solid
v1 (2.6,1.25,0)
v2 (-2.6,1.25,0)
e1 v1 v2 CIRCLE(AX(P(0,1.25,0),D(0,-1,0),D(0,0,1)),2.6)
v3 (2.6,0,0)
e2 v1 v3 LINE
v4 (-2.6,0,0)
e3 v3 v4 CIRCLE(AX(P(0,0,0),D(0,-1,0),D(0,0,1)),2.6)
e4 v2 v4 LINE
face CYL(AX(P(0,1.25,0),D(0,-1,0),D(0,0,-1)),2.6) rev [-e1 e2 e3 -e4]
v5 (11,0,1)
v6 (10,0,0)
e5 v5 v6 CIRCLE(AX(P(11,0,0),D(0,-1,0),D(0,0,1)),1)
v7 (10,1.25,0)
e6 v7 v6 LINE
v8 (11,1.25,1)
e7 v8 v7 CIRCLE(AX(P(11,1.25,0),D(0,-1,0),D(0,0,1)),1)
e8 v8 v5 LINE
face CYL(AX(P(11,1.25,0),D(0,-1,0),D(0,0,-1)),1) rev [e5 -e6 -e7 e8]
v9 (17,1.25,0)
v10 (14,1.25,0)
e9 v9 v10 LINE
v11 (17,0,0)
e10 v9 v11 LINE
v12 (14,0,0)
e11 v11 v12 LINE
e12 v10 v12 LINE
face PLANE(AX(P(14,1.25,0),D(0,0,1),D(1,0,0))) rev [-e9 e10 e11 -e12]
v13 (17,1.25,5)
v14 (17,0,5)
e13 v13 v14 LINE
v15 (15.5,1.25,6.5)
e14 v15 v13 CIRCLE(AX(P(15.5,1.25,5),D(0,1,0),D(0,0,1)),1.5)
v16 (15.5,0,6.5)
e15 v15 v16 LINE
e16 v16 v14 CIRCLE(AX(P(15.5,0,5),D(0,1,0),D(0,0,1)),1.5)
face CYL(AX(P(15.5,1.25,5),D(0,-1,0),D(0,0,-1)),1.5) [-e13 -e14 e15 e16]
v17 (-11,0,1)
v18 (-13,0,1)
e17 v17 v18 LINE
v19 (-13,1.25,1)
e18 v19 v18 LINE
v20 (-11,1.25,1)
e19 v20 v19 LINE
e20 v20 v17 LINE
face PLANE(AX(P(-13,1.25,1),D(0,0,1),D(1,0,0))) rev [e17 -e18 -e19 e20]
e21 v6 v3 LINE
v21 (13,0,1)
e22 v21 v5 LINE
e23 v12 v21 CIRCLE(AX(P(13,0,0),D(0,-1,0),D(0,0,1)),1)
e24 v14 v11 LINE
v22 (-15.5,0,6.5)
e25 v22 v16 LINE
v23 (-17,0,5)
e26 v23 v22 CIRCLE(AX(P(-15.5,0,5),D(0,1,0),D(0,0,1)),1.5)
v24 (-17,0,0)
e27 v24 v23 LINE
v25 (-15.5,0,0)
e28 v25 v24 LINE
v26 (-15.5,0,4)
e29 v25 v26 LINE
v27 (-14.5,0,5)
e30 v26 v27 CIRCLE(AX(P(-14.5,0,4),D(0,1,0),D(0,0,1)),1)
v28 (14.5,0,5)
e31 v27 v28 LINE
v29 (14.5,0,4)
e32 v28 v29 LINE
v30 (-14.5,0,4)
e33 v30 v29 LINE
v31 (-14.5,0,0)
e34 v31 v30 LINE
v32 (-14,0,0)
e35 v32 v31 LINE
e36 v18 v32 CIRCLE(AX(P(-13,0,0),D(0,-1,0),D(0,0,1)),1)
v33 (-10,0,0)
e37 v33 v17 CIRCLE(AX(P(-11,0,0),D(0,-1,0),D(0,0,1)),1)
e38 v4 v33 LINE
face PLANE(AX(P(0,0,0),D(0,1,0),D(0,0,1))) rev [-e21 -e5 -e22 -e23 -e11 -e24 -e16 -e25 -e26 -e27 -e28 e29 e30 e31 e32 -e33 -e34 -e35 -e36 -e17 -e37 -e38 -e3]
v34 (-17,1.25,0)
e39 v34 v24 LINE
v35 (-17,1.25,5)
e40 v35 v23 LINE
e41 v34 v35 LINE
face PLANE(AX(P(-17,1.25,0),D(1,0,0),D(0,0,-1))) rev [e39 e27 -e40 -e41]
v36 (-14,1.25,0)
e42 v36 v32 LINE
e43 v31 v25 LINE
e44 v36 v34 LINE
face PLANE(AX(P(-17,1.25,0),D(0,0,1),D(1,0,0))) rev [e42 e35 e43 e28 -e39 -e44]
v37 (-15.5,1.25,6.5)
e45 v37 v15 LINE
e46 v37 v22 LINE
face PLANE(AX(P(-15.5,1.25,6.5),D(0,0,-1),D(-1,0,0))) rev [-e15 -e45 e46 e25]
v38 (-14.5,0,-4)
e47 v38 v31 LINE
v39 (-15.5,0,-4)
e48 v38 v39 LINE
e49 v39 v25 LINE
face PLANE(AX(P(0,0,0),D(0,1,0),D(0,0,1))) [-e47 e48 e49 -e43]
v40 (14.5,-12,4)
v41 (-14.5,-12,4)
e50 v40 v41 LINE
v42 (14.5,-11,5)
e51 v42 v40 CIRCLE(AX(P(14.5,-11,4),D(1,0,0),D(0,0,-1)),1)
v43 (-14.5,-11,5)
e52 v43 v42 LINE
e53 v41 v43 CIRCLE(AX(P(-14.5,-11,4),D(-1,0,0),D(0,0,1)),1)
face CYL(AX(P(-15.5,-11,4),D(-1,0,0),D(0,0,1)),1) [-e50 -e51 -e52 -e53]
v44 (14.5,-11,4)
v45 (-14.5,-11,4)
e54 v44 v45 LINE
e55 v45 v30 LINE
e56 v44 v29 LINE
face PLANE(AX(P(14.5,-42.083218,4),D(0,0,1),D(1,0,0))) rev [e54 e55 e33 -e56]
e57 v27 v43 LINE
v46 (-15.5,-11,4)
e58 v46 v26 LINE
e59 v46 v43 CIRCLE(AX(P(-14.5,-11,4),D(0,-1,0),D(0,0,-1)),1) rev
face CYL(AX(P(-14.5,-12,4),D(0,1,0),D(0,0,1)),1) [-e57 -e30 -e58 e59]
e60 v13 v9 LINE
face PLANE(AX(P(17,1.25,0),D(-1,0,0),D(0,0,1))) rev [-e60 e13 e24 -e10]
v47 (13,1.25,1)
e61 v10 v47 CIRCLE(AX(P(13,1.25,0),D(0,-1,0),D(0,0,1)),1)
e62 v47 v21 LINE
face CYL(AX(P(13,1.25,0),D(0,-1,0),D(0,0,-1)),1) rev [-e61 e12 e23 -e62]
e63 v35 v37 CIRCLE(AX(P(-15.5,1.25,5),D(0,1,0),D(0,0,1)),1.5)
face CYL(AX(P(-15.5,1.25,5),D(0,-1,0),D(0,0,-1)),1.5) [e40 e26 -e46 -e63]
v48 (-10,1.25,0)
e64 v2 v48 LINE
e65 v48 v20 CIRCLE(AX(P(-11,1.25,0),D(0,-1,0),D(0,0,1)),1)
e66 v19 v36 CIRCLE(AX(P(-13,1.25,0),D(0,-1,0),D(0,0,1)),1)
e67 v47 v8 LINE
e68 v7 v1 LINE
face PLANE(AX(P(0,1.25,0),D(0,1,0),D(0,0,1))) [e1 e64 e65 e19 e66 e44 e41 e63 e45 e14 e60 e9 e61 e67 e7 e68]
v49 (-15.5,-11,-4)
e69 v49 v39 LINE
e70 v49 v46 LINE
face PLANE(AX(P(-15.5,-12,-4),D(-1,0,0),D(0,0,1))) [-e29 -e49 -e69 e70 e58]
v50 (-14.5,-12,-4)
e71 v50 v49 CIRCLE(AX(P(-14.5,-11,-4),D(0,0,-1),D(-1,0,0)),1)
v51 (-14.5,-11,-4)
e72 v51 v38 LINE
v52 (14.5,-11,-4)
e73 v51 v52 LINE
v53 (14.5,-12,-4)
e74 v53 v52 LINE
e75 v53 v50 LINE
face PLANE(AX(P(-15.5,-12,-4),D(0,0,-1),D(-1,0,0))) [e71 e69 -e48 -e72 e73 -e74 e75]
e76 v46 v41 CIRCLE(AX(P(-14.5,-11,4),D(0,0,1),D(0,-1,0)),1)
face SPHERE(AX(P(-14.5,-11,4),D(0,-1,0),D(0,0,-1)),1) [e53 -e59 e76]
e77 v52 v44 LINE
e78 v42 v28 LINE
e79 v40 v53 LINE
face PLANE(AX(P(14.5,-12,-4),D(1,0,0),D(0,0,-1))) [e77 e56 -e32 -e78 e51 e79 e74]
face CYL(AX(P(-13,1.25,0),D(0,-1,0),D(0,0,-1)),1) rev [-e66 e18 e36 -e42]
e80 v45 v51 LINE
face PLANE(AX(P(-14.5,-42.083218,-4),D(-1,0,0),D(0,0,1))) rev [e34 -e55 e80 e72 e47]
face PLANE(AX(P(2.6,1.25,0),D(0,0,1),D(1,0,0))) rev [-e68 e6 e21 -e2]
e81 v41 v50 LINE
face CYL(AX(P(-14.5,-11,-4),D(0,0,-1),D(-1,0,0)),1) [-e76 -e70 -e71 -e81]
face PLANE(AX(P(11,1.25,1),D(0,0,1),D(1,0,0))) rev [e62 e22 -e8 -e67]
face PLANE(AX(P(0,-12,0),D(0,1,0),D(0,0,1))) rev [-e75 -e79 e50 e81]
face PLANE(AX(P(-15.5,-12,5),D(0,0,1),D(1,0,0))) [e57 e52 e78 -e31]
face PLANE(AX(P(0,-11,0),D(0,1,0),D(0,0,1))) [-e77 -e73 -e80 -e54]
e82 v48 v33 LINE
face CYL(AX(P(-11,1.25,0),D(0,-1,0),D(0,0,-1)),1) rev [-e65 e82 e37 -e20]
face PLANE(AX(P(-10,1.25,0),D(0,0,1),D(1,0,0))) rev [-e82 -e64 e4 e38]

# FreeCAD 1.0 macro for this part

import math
import FreeCAD as App
import Part
import Sketcher
Q = App.Units.Quantity


def edges_at(feature, points):
    """Names of the edges that pass closest to the given points."""
    edges = feature.Shape.Edges
    near = lambda p: min(range(len(edges)), key=lambda i: edges[i].distToShape(Part.Vertex(*p))[0])
    return sorted({f"Edge{near(p) + 1}" for p in points})

doc = App.newDocument("Part")
params = doc.addObject("Spreadsheet::Sheet", "Params")
for row, (alias, value) in enumerate([
    ("sketch1_width", "30 mm"),
    ("sketch1_height", "9 mm"),
    ("pad1_length", "12 mm"),
    ("sketch2_width", "29 mm"),
    ("sketch2_height", "8 mm"),
    ("pocket1_length", "11 mm"),
    ("sketch3_radius", "1 mm"),
    ("sketch3_radius2", "1.5 mm"),
    ("sketch3_radius3", "2.6 mm"),
    ("sketch3_width", "3 mm"),
    ("sketch3_width2", "31 mm"),
    ("pad2_length", "1.25 mm"),
    ("fillet_radius", "1 mm"),
], start=1):
    params.set(f"A{row}", alias)
    params.set(f"B{row}", "=" + value)
    params.setAlias(f"B{row}", alias)

body = doc.addObject("PartDesign::Body", "Body")

# Sketch on XZ plane
sketch1 = body.newObject("Sketcher::SketchObject", "Sketch")
sketch1.AttachmentSupport = (doc.getObject("XZ_Plane"), [""])
sketch1.MapMode = "FlatFace"
sketch1.addGeometry(Part.LineSegment(App.Vector(-15.5, -4, 0), App.Vector(-15.5, 5, 0)), False)
sketch1.addGeometry(Part.LineSegment(App.Vector(-15.5, 5, 0), App.Vector(14.5, 5, 0)), False)
sketch1.addGeometry(Part.LineSegment(App.Vector(14.5, 5, 0), App.Vector(14.5, -4, 0)), False)
sketch1.addGeometry(Part.LineSegment(App.Vector(14.5, -4, 0), App.Vector(-15.5, -4, 0)), False)
sketch1.addConstraint(Sketcher.Constraint("Coincident", 0, 2, 1, 1))
sketch1.addConstraint(Sketcher.Constraint("Coincident", 1, 2, 2, 1))
sketch1.addConstraint(Sketcher.Constraint("Coincident", 2, 2, 3, 1))
sketch1.addConstraint(Sketcher.Constraint("Coincident", 3, 2, 0, 1))
sketch1.addConstraint(Sketcher.Constraint("Vertical", 0))
sketch1.addConstraint(Sketcher.Constraint("Horizontal", 1))
sketch1.addConstraint(Sketcher.Constraint("Vertical", 2))
sketch1.addConstraint(Sketcher.Constraint("Horizontal", 3))
sketch1.addConstraint(Sketcher.Constraint("DistanceX", 1, 1, 1, 2, Q("30 mm")))
sketch1.addConstraint(Sketcher.Constraint("DistanceY", 0, 1, 0, 2, Q("9 mm")))
sketch1.addConstraint(Sketcher.Constraint("DistanceY", -1, 1, 0, 2, Q("5 mm")))
sketch1.addConstraint(Sketcher.Constraint("DistanceX", 0, 2, -1, 1, Q("15.5 mm")))
sketch1.setExpression("Constraints[8]", "Params.sketch1_width")
sketch1.setExpression("Constraints[9]", "Params.sketch1_height")
pad1 = body.newObject("PartDesign::Pad", "Pad")
pad1.Profile = sketch1
pad1.setExpression("Length", "Params.pad1_length")

# Sketch on XZ plane
sketch2 = body.newObject("Sketcher::SketchObject", "Sketch001")
sketch2.AttachmentSupport = (doc.getObject("XZ_Plane"), [""])
sketch2.MapMode = "FlatFace"
sketch2.addGeometry(Part.LineSegment(App.Vector(-14.5, -4, 0), App.Vector(-14.5, 4, 0)), False)
sketch2.addGeometry(Part.LineSegment(App.Vector(-14.5, 4, 0), App.Vector(14.5, 4, 0)), False)
sketch2.addGeometry(Part.LineSegment(App.Vector(14.5, 4, 0), App.Vector(14.5, -4, 0)), False)
sketch2.addGeometry(Part.LineSegment(App.Vector(14.5, -4, 0), App.Vector(-14.5, -4, 0)), False)
sketch2.addConstraint(Sketcher.Constraint("Coincident", 0, 2, 1, 1))
sketch2.addConstraint(Sketcher.Constraint("Coincident", 1, 2, 2, 1))
sketch2.addConstraint(Sketcher.Constraint("Coincident", 2, 2, 3, 1))
sketch2.addConstraint(Sketcher.Constraint("Coincident", 3, 2, 0, 1))
sketch2.addConstraint(Sketcher.Constraint("Vertical", 0))
sketch2.addConstraint(Sketcher.Constraint("Horizontal", 1))
sketch2.addConstraint(Sketcher.Constraint("Vertical", 2))
sketch2.addConstraint(Sketcher.Constraint("Horizontal", 3))
sketch2.addConstraint(Sketcher.Constraint("Symmetric", 0, 2, 2, 2, -1, 1))
sketch2.addConstraint(Sketcher.Constraint("DistanceX", 1, 1, 1, 2, Q("29 mm")))
sketch2.addConstraint(Sketcher.Constraint("DistanceY", 0, 1, 0, 2, Q("8 mm")))
sketch2.setExpression("Constraints[9]", "Params.sketch2_width")
sketch2.setExpression("Constraints[10]", "Params.sketch2_height")
pocket1 = body.newObject("PartDesign::Pocket", "Pocket")
pocket1.Profile = sketch2
pocket1.setExpression("Length", "Params.pocket1_length")
pocket1.Reversed = True

# Sketch on XZ plane
sketch3 = body.newObject("Sketcher::SketchObject", "Sketch002")
sketch3.AttachmentSupport = (doc.getObject("XZ_Plane"), [""])
sketch3.MapMode = "FlatFace"
sketch3.addGeometry(Part.LineSegment(App.Vector(-14, 0, 0), App.Vector(-17, 0, 0)), False)
sketch3.addGeometry(Part.LineSegment(App.Vector(-17, 0, 0), App.Vector(-17, 5, 0)), False)
sketch3.addGeometry(Part.ArcOfCircle(Part.Circle(App.Vector(-15.5, 5, 0), App.Vector(0, 0, 1), 1.5), math.radians(90), math.radians(180)), False)
sketch3.addGeometry(Part.LineSegment(App.Vector(-15.5, 6.5, 0), App.Vector(15.5, 6.5, 0)), False)
sketch3.addGeometry(Part.ArcOfCircle(Part.Circle(App.Vector(15.5, 5, 0), App.Vector(0, 0, 1), 1.5), math.radians(0), math.radians(90)), False)
sketch3.addGeometry(Part.LineSegment(App.Vector(17, 5, 0), App.Vector(17, 0, 0)), False)
sketch3.addGeometry(Part.LineSegment(App.Vector(17, 0, 0), App.Vector(14, 0, 0)), False)
sketch3.addGeometry(Part.ArcOfCircle(Part.Circle(App.Vector(13, 0, 0), App.Vector(0, 0, 1), 1), math.radians(0), math.radians(90)), False)
sketch3.addGeometry(Part.LineSegment(App.Vector(13, 1, 0), App.Vector(11, 1, 0)), False)
sketch3.addGeometry(Part.ArcOfCircle(Part.Circle(App.Vector(11, 0, 0), App.Vector(0, 0, 1), 1), math.radians(90), math.radians(180)), False)
sketch3.addGeometry(Part.LineSegment(App.Vector(10, 0, 0), App.Vector(2.6, 0, 0)), False)
sketch3.addGeometry(Part.ArcOfCircle(Part.Circle(App.Vector(0, 0, 0), App.Vector(0, 0, 1), 2.6), math.radians(0), math.radians(180)), False)
sketch3.addGeometry(Part.LineSegment(App.Vector(-2.6, 0, 0), App.Vector(-10, 0, 0)), False)
sketch3.addGeometry(Part.ArcOfCircle(Part.Circle(App.Vector(-11, 0, 0), App.Vector(0, 0, 1), 1), math.radians(0), math.radians(90)), False)
sketch3.addGeometry(Part.LineSegment(App.Vector(-11, 1, 0), App.Vector(-13, 1, 0)), False)
sketch3.addGeometry(Part.ArcOfCircle(Part.Circle(App.Vector(-13, 0, 0), App.Vector(0, 0, 1), 1), math.radians(90), math.radians(180)), False)
sketch3.addConstraint(Sketcher.Constraint("Coincident", 0, 2, 1, 1))
sketch3.addConstraint(Sketcher.Constraint("Tangent", 1, 2, 2, 2))
sketch3.addConstraint(Sketcher.Constraint("Tangent", 2, 1, 3, 1))
sketch3.addConstraint(Sketcher.Constraint("Tangent", 3, 2, 4, 2))
sketch3.addConstraint(Sketcher.Constraint("Tangent", 4, 1, 5, 1))
sketch3.addConstraint(Sketcher.Constraint("Coincident", 5, 2, 6, 1))
sketch3.addConstraint(Sketcher.Constraint("Coincident", 6, 2, 7, 1))
sketch3.addConstraint(Sketcher.Constraint("Tangent", 7, 2, 8, 1))
sketch3.addConstraint(Sketcher.Constraint("Tangent", 8, 2, 9, 1))
sketch3.addConstraint(Sketcher.Constraint("Coincident", 9, 2, 10, 1))
sketch3.addConstraint(Sketcher.Constraint("Coincident", 10, 2, 11, 1))
sketch3.addConstraint(Sketcher.Constraint("Coincident", 11, 2, 12, 1))
sketch3.addConstraint(Sketcher.Constraint("Coincident", 12, 2, 13, 1))
sketch3.addConstraint(Sketcher.Constraint("Tangent", 13, 2, 14, 1))
sketch3.addConstraint(Sketcher.Constraint("Tangent", 14, 2, 15, 1))
sketch3.addConstraint(Sketcher.Constraint("Coincident", 15, 2, 0, 1))
sketch3.addConstraint(Sketcher.Constraint("Horizontal", 0))
sketch3.addConstraint(Sketcher.Constraint("Vertical", 1))
sketch3.addConstraint(Sketcher.Constraint("Horizontal", 3))
sketch3.addConstraint(Sketcher.Constraint("Vertical", 5))
sketch3.addConstraint(Sketcher.Constraint("Horizontal", 6))
sketch3.addConstraint(Sketcher.Constraint("Horizontal", 8))
sketch3.addConstraint(Sketcher.Constraint("Horizontal", 10))
sketch3.addConstraint(Sketcher.Constraint("Horizontal", 12))
sketch3.addConstraint(Sketcher.Constraint("Horizontal", 14))
sketch3.addConstraint(Sketcher.Constraint("Coincident", 11, 3, -1, 1))
sketch3.addConstraint(Sketcher.Constraint("Equal", 2, 4))
sketch3.addConstraint(Sketcher.Constraint("Equal", 7, 9))
sketch3.addConstraint(Sketcher.Constraint("Equal", 9, 13))
sketch3.addConstraint(Sketcher.Constraint("Equal", 13, 15))
sketch3.addConstraint(Sketcher.Constraint("Symmetric", 9, 3, 13, 3, -1, 1))
sketch3.addConstraint(Sketcher.Constraint("Symmetric", 0, 2, 5, 2, -1, 1))
sketch3.addConstraint(Sketcher.Constraint("Symmetric", 7, 3, 15, 3, -2))
sketch3.addConstraint(Sketcher.Constraint("PointOnObject", 0, 2, -1))
sketch3.addConstraint(Sketcher.Constraint("PointOnObject", 9, 2, -1))
sketch3.addConstraint(Sketcher.Constraint("PointOnObject", 11, 2, -1))
sketch3.addConstraint(Sketcher.Constraint("Radius", 7, Q("1 mm")))
sketch3.addConstraint(Sketcher.Constraint("Radius", 2, Q("1.5 mm")))
sketch3.addConstraint(Sketcher.Constraint("Radius", 11, Q("2.6 mm")))
sketch3.addConstraint(Sketcher.Constraint("DistanceX", 0, 2, 0, 1, Q("3 mm")))
sketch3.addConstraint(Sketcher.Constraint("DistanceX", 3, 1, 3, 2, Q("31 mm")))
sketch3.addConstraint(Sketcher.Constraint("DistanceX", 8, 2, 8, 1, Q("2 mm")))
sketch3.addConstraint(Sketcher.Constraint("DistanceY", 1, 1, 1, 2, Q("5 mm")))
sketch3.setExpression("Constraints[36]", "Params.sketch3_radius")
sketch3.setExpression("Constraints[37]", "Params.sketch3_radius2")
sketch3.setExpression("Constraints[38]", "Params.sketch3_radius3")
sketch3.setExpression("Constraints[39]", "Params.sketch3_width")
sketch3.setExpression("Constraints[40]", "Params.sketch3_width2")
pad2 = body.newObject("PartDesign::Pad", "Pad001")
pad2.Profile = sketch3
pad2.setExpression("Length", "Params.pad2_length")
pad2.Reversed = True
doc.recompute()

fillet = body.newObject("PartDesign::Fillet", "Fillet")
fillet.Base = (pad2, edges_at(pad2, [(-15.5, -12, 0.5), (-0.5, -12, 5), (-15.5, -6, 5)]))
fillet.setExpression("Radius", "Params.fillet_radius")

doc.recompute()
